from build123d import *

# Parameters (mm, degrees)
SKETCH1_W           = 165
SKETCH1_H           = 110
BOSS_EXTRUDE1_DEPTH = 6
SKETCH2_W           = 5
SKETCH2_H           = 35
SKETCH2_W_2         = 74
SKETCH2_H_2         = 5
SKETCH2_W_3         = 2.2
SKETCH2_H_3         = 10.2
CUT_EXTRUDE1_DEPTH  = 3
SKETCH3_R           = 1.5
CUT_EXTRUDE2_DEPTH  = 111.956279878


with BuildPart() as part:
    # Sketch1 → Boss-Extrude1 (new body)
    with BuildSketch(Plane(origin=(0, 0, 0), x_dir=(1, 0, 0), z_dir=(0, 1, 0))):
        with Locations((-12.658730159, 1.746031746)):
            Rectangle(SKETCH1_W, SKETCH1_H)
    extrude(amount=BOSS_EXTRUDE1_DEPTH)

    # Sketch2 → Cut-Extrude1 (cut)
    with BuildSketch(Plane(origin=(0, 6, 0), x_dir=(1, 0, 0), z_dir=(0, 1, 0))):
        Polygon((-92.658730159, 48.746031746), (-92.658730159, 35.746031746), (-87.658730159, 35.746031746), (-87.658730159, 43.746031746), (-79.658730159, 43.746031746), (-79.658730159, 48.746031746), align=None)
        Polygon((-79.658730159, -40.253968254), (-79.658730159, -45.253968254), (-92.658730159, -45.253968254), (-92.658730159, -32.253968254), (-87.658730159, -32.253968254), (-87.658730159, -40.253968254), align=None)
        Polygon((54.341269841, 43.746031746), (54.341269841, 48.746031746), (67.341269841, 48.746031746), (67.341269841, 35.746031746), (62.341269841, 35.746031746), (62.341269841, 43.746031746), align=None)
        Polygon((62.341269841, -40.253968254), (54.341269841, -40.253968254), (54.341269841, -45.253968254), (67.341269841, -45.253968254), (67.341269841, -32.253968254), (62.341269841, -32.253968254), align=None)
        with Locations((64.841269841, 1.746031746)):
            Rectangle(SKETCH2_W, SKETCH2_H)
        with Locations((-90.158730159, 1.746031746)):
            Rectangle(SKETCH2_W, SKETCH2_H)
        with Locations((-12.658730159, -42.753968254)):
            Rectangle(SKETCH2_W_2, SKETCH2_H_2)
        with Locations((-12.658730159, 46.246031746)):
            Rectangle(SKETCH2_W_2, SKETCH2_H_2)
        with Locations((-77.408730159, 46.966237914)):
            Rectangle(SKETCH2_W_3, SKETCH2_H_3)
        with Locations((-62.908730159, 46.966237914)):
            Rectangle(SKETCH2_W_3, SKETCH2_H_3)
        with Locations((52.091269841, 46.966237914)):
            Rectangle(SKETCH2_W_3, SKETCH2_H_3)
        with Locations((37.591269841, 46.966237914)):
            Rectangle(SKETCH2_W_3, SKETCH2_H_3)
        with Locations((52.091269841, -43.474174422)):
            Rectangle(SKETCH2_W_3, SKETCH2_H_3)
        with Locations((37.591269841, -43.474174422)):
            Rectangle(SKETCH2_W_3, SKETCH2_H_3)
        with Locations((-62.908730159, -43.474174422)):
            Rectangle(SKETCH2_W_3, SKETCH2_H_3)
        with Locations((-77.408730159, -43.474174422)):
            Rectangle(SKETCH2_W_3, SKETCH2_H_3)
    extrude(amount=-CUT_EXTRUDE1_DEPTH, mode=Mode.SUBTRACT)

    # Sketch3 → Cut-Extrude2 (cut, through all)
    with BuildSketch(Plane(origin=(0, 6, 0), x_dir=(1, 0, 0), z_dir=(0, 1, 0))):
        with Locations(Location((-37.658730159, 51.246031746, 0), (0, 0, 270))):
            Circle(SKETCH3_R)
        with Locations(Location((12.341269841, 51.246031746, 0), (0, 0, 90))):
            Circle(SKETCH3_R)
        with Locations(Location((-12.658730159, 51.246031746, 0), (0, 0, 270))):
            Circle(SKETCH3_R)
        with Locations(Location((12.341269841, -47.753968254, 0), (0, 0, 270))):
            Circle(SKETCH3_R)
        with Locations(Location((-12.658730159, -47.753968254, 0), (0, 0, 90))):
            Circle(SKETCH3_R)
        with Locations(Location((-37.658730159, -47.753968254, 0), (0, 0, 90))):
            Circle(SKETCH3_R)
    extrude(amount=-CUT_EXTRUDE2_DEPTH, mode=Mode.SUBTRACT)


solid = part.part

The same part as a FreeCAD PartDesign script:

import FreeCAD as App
import Part
import Sketcher

V = App.Vector
Q = App.Units.Quantity

doc = App.newDocument("Part")
params = doc.addObject("Spreadsheet::Sheet", "Params")
for row, (alias, value) in enumerate([
    ("sketch1_width", "165 mm"),
    ("sketch1_height", "110 mm"),
    ("pad1_length", "6 mm"),
    ("sketch2_width", "5 mm"),
    ("sketch2_width2", "8 mm"),
    ("sketch2_width3", "74 mm"),
    ("sketch2_height", "35 mm"),
    ("sketch2_width4", "2.2 mm"),
    ("pocket1_length", "3 mm"),
    ("sketch3_diameter", "3 mm"),
], start=1):
    params.set(f"A{row}", alias)
    params.set(f"B{row}", "=" + value)
    params.setAlias(f"B{row}", alias)

body = doc.addObject("PartDesign::Body", "Body")

sketch1 = body.newObject("Sketcher::SketchObject", "Sketch")
sketch1.AttachmentSupport = (doc.getObject("XZ_Plane"), [""])
sketch1.MapMode = "FlatFace"
sketch1.addGeometry([
    Part.LineSegment(V(-95, -57, 0), V(-95, 53, 0)),
    Part.LineSegment(V(-95, 53, 0), V(70, 53, 0)),
    Part.LineSegment(V(70, 53, 0), V(70, -57, 0)),
    Part.LineSegment(V(70, -57, 0), V(-95, -57, 0)),
], False)
sketch1.addConstraint([
    Sketcher.Constraint("Coincident", 0, 2, 1, 1),
    Sketcher.Constraint("Coincident", 1, 2, 2, 1),
    Sketcher.Constraint("Coincident", 2, 2, 3, 1),
    Sketcher.Constraint("Coincident", 3, 2, 0, 1),
    Sketcher.Constraint("Vertical", 0),
    Sketcher.Constraint("Horizontal", 1),
    Sketcher.Constraint("Vertical", 2),
    Sketcher.Constraint("Horizontal", 3),
    Sketcher.Constraint("DistanceX", 1, 1, 1, 2, Q("165 mm")),
    Sketcher.Constraint("DistanceY", 0, 1, 0, 2, Q("110 mm")),
    Sketcher.Constraint("DistanceX", 0, 2, -1, 1, Q("95.15873 mm")),
    Sketcher.Constraint("DistanceY", -1, 1, 0, 2, Q("53.253968 mm")),
])
sketch1.setExpression("Constraints[8]", "Params.sketch1_width")
sketch1.setExpression("Constraints[9]", "Params.sketch1_height")
pad1 = body.newObject("PartDesign::Pad", "Pad")
pad1.Profile = sketch1
pad1.setExpression("Length", "Params.pad1_length")
pad1.Reversed = True

sketch2 = body.newObject("Sketcher::SketchObject", "Sketch001")
sketch2.AttachmentSupport = (doc.getObject("XZ_Plane"), [""])
sketch2.MapMode = "FlatFace"
sketch2.AttachmentOffset = App.Placement(V(0, 0, -6), App.Rotation())
sketch2.addGeometry([
    Part.LineSegment(V(-92.7, -48.7, 0), V(-92.7, -35.7, 0)),
    Part.LineSegment(V(-92.7, -35.7, 0), V(-87.7, -35.7, 0)),
    Part.LineSegment(V(-87.7, -35.7, 0), V(-87.7, -43.7, 0)),
    Part.LineSegment(V(-87.7, -43.7, 0), V(-79.7, -43.7, 0)),
    Part.LineSegment(V(-79.7, -43.7, 0), V(-79.7, -48.7, 0)),
    Part.LineSegment(V(-79.7, -48.7, 0), V(-92.7, -48.7, 0)),
    Part.LineSegment(V(-79.7, 45.3, 0), V(-79.7, 40.3, 0)),
    Part.LineSegment(V(-79.7, 40.3, 0), V(-87.7, 40.3, 0)),
    Part.LineSegment(V(-87.7, 40.3, 0), V(-87.7, 32.3, 0)),
    Part.LineSegment(V(-87.7, 32.3, 0), V(-92.7, 32.3, 0)),
    Part.LineSegment(V(-92.7, 32.3, 0), V(-92.7, 45.3, 0)),
    Part.LineSegment(V(-92.7, 45.3, 0), V(-79.7, 45.3, 0)),
    Part.LineSegment(V(54.3, -48.7, 0), V(54.3, -43.7, 0)),
    Part.LineSegment(V(54.3, -43.7, 0), V(62.3, -43.7, 0)),
    Part.LineSegment(V(62.3, -43.7, 0), V(62.3, -35.7, 0)),
    Part.LineSegment(V(62.3, -35.7, 0), V(67.3, -35.7, 0)),
    Part.LineSegment(V(67.3, -35.7, 0), V(67.3, -48.7, 0)),
    Part.LineSegment(V(67.3, -48.7, 0), V(54.3, -48.7, 0)),
    Part.LineSegment(V(62.3, 40.3, 0), V(54.3, 40.3, 0)),
    Part.LineSegment(V(54.3, 40.3, 0), V(54.3, 45.3, 0)),
    Part.LineSegment(V(54.3, 45.3, 0), V(67.3, 45.3, 0)),
    Part.LineSegment(V(67.3, 45.3, 0), V(67.3, 32.3, 0)),
    Part.LineSegment(V(67.3, 32.3, 0), V(62.3, 32.3, 0)),
    Part.LineSegment(V(62.3, 32.3, 0), V(62.3, 40.3, 0)),
    Part.LineSegment(V(62.3, -19.2, 0), V(62.3, 15.8, 0)),
    Part.LineSegment(V(62.3, 15.8, 0), V(67.3, 15.8, 0)),
    Part.LineSegment(V(67.3, 15.8, 0), V(67.3, -19.2, 0)),
    Part.LineSegment(V(67.3, -19.2, 0), V(62.3, -19.2, 0)),
    Part.LineSegment(V(-92.7, -19.2, 0), V(-92.7, 15.8, 0)),
    Part.LineSegment(V(-92.7, 15.8, 0), V(-87.7, 15.8, 0)),
    Part.LineSegment(V(-87.7, 15.8, 0), V(-87.7, -19.2, 0)),
    Part.LineSegment(V(-87.7, -19.2, 0), V(-92.7, -19.2, 0)),
    Part.LineSegment(V(-49.7, 40.3, 0), V(-49.7, 45.3, 0)),
    Part.LineSegment(V(-49.7, 45.3, 0), V(24.3, 45.3, 0)),
    Part.LineSegment(V(24.3, 45.3, 0), V(24.3, 40.3, 0)),
    Part.LineSegment(V(24.3, 40.3, 0), V(-49.7, 40.3, 0)),
    Part.LineSegment(V(-49.7, -48.7, 0), V(-49.7, -43.7, 0)),
    Part.LineSegment(V(-49.7, -43.7, 0), V(24.3, -43.7, 0)),
    Part.LineSegment(V(24.3, -43.7, 0), V(24.3, -48.7, 0)),
    Part.LineSegment(V(24.3, -48.7, 0), V(-49.7, -48.7, 0)),
    Part.LineSegment(V(-78.5, -52.1, 0), V(-78.5, -41.9, 0)),
    Part.LineSegment(V(-78.5, -41.9, 0), V(-76.3, -41.9, 0)),
    Part.LineSegment(V(-76.3, -41.9, 0), V(-76.3, -52.1, 0)),
    Part.LineSegment(V(-76.3, -52.1, 0), V(-78.5, -52.1, 0)),
    Part.LineSegment(V(-64, -52.1, 0), V(-64, -41.9, 0)),
    Part.LineSegment(V(-64, -41.9, 0), V(-61.8, -41.9, 0)),
    Part.LineSegment(V(-61.8, -41.9, 0), V(-61.8, -52.1, 0)),
    Part.LineSegment(V(-61.8, -52.1, 0), V(-64, -52.1, 0)),
    Part.LineSegment(V(51, -52.1, 0), V(51, -41.9, 0)),
    Part.LineSegment(V(51, -41.9, 0), V(53.2, -41.9, 0)),
    Part.LineSegment(V(53.2, -41.9, 0), V(53.2, -52.1, 0)),
    Part.LineSegment(V(53.2, -52.1, 0), V(51, -52.1, 0)),
    Part.LineSegment(V(36.5, -52.1, 0), V(36.5, -41.9, 0)),
    Part.LineSegment(V(36.5, -41.9, 0), V(38.7, -41.9, 0)),
    Part.LineSegment(V(38.7, -41.9, 0), V(38.7, -52.1, 0)),
    Part.LineSegment(V(38.7, -52.1, 0), V(36.5, -52.1, 0)),
    Part.LineSegment(V(51, 38.4, 0), V(51, 48.6, 0)),
    Part.LineSegment(V(51, 48.6, 0), V(53.2, 48.6, 0)),
    Part.LineSegment(V(53.2, 48.6, 0), V(53.2, 38.4, 0)),
    Part.LineSegment(V(53.2, 38.4, 0), V(51, 38.4, 0)),
    Part.LineSegment(V(36.5, 38.4, 0), V(36.5, 48.6, 0)),
    Part.LineSegment(V(36.5, 48.6, 0), V(38.7, 48.6, 0)),
    Part.LineSegment(V(38.7, 48.6, 0), V(38.7, 38.4, 0)),
    Part.LineSegment(V(38.7, 38.4, 0), V(36.5, 38.4, 0)),
    Part.LineSegment(V(-64, 38.4, 0), V(-64, 48.6, 0)),
    Part.LineSegment(V(-64, 48.6, 0), V(-61.8, 48.6, 0)),
    Part.LineSegment(V(-61.8, 48.6, 0), V(-61.8, 38.4, 0)),
    Part.LineSegment(V(-61.8, 38.4, 0), V(-64, 38.4, 0)),
    Part.LineSegment(V(-78.5, 38.4, 0), V(-78.5, 48.6, 0)),
    Part.LineSegment(V(-78.5, 48.6, 0), V(-76.3, 48.6, 0)),
    Part.LineSegment(V(-76.3, 48.6, 0), V(-76.3, 38.4, 0)),
    Part.LineSegment(V(-76.3, 38.4, 0), V(-78.5, 38.4, 0)),
], False)
sketch2.addConstraint([
    Sketcher.Constraint("Coincident", 0, 2, 1, 1),
    Sketcher.Constraint("Coincident", 1, 2, 2, 1),
    Sketcher.Constraint("Coincident", 2, 2, 3, 1),
    Sketcher.Constraint("Coincident", 3, 2, 4, 1),
    Sketcher.Constraint("Coincident", 4, 2, 5, 1),
    Sketcher.Constraint("Coincident", 5, 2, 0, 1),
    Sketcher.Constraint("Coincident", 6, 2, 7, 1),
    Sketcher.Constraint("Coincident", 7, 2, 8, 1),
    Sketcher.Constraint("Coincident", 8, 2, 9, 1),
    Sketcher.Constraint("Coincident", 9, 2, 10, 1),
    Sketcher.Constraint("Coincident", 10, 2, 11, 1),
    Sketcher.Constraint("Coincident", 11, 2, 6, 1),
    Sketcher.Constraint("Coincident", 12, 2, 13, 1),
    Sketcher.Constraint("Coincident", 13, 2, 14, 1),
    Sketcher.Constraint("Coincident", 14, 2, 15, 1),
    Sketcher.Constraint("Coincident", 15, 2, 16, 1),
    Sketcher.Constraint("Coincident", 16, 2, 17, 1),
    Sketcher.Constraint("Coincident", 17, 2, 12, 1),
    Sketcher.Constraint("Coincident", 18, 2, 19, 1),
    Sketcher.Constraint("Coincident", 19, 2, 20, 1),
    Sketcher.Constraint("Coincident", 20, 2, 21, 1),
    Sketcher.Constraint("Coincident", 21, 2, 22, 1),
    Sketcher.Constraint("Coincident", 22, 2, 23, 1),
    Sketcher.Constraint("Coincident", 23, 2, 18, 1),
    Sketcher.Constraint("Coincident", 24, 2, 25, 1),
    Sketcher.Constraint("Coincident", 25, 2, 26, 1),
    Sketcher.Constraint("Coincident", 26, 2, 27, 1),
    Sketcher.Constraint("Coincident", 27, 2, 24, 1),
    Sketcher.Constraint("Coincident", 28, 2, 29, 1),
    Sketcher.Constraint("Coincident", 29, 2, 30, 1),
    Sketcher.Constraint("Coincident", 30, 2, 31, 1),
    Sketcher.Constraint("Coincident", 31, 2, 28, 1),
    Sketcher.Constraint("Coincident", 32, 2, 33, 1),
    Sketcher.Constraint("Coincident", 33, 2, 34, 1),
    Sketcher.Constraint("Coincident", 34, 2, 35, 1),
    Sketcher.Constraint("Coincident", 35, 2, 32, 1),
    Sketcher.Constraint("Coincident", 36, 2, 37, 1),
    Sketcher.Constraint("Coincident", 37, 2, 38, 1),
    Sketcher.Constraint("Coincident", 38, 2, 39, 1),
    Sketcher.Constraint("Coincident", 39, 2, 36, 1),
    Sketcher.Constraint("Coincident", 40, 2, 41, 1),
    Sketcher.Constraint("Coincident", 41, 2, 42, 1),
    Sketcher.Constraint("Coincident", 42, 2, 43, 1),
    Sketcher.Constraint("Coincident", 43, 2, 40, 1),
    Sketcher.Constraint("Coincident", 44, 2, 45, 1),
    Sketcher.Constraint("Coincident", 45, 2, 46, 1),
    Sketcher.Constraint("Coincident", 46, 2, 47, 1),
    Sketcher.Constraint("Coincident", 47, 2, 44, 1),
    Sketcher.Constraint("Coincident", 48, 2, 49, 1),
    Sketcher.Constraint("Coincident", 49, 2, 50, 1),
    Sketcher.Constraint("Coincident", 50, 2, 51, 1),
    Sketcher.Constraint("Coincident", 51, 2, 48, 1),
    Sketcher.Constraint("Coincident", 52, 2, 53, 1),
    Sketcher.Constraint("Coincident", 53, 2, 54, 1),
    Sketcher.Constraint("Coincident", 54, 2, 55, 1),
    Sketcher.Constraint("Coincident", 55, 2, 52, 1),
    Sketcher.Constraint("Coincident", 56, 2, 57, 1),
    Sketcher.Constraint("Coincident", 57, 2, 58, 1),
    Sketcher.Constraint("Coincident", 58, 2, 59, 1),
    Sketcher.Constraint("Coincident", 59, 2, 56, 1),
    Sketcher.Constraint("Coincident", 60, 2, 61, 1),
    Sketcher.Constraint("Coincident", 61, 2, 62, 1),
    Sketcher.Constraint("Coincident", 62, 2, 63, 1),
    Sketcher.Constraint("Coincident", 63, 2, 60, 1),
    Sketcher.Constraint("Coincident", 64, 2, 65, 1),
    Sketcher.Constraint("Coincident", 65, 2, 66, 1),
    Sketcher.Constraint("Coincident", 66, 2, 67, 1),
    Sketcher.Constraint("Coincident", 67, 2, 64, 1),
    Sketcher.Constraint("Coincident", 68, 2, 69, 1),
    Sketcher.Constraint("Coincident", 69, 2, 70, 1),
    Sketcher.Constraint("Coincident", 70, 2, 71, 1),
    Sketcher.Constraint("Coincident", 71, 2, 68, 1),
    Sketcher.Constraint("Vertical", 0),
    Sketcher.Constraint("Horizontal", 1),
    Sketcher.Constraint("Vertical", 2),
    Sketcher.Constraint("Horizontal", 3),
    Sketcher.Constraint("Vertical", 4),
    Sketcher.Constraint("Horizontal", 5),
    Sketcher.Constraint("Vertical", 6),
    Sketcher.Constraint("Horizontal", 7),
    Sketcher.Constraint("Vertical", 8),
    Sketcher.Constraint("Horizontal", 9),
    Sketcher.Constraint("Vertical", 10),
    Sketcher.Constraint("Horizontal", 11),
    Sketcher.Constraint("Vertical", 12),
    Sketcher.Constraint("Horizontal", 13),
    Sketcher.Constraint("Vertical", 14),
    Sketcher.Constraint("Horizontal", 15),
    Sketcher.Constraint("Vertical", 16),
    Sketcher.Constraint("Horizontal", 17),
    Sketcher.Constraint("Horizontal", 18),
    Sketcher.Constraint("Vertical", 19),
    Sketcher.Constraint("Horizontal", 20),
    Sketcher.Constraint("Vertical", 21),
    Sketcher.Constraint("Horizontal", 22),
    Sketcher.Constraint("Vertical", 23),
    Sketcher.Constraint("Vertical", 24),
    Sketcher.Constraint("Horizontal", 25),
    Sketcher.Constraint("Vertical", 26),
    Sketcher.Constraint("Horizontal", 27),
    Sketcher.Constraint("Vertical", 28),
    Sketcher.Constraint("Horizontal", 29),
    Sketcher.Constraint("Vertical", 30),
    Sketcher.Constraint("Horizontal", 31),
    Sketcher.Constraint("Vertical", 32),
    Sketcher.Constraint("Horizontal", 33),
    Sketcher.Constraint("Vertical", 34),
    Sketcher.Constraint("Horizontal", 35),
    Sketcher.Constraint("Vertical", 36),
    Sketcher.Constraint("Horizontal", 37),
    Sketcher.Constraint("Vertical", 38),
    Sketcher.Constraint("Horizontal", 39),
    Sketcher.Constraint("Vertical", 40),
    Sketcher.Constraint("Horizontal", 41),
    Sketcher.Constraint("Vertical", 42),
    Sketcher.Constraint("Horizontal", 43),
    Sketcher.Constraint("Vertical", 44),
    Sketcher.Constraint("Horizontal", 45),
    Sketcher.Constraint("Vertical", 46),
    Sketcher.Constraint("Horizontal", 47),
    Sketcher.Constraint("Vertical", 48),
    Sketcher.Constraint("Horizontal", 49),
    Sketcher.Constraint("Vertical", 50),
    Sketcher.Constraint("Horizontal", 51),
    Sketcher.Constraint("Vertical", 52),
    Sketcher.Constraint("Horizontal", 53),
    Sketcher.Constraint("Vertical", 54),
    Sketcher.Constraint("Horizontal", 55),
    Sketcher.Constraint("Vertical", 56),
    Sketcher.Constraint("Horizontal", 57),
    Sketcher.Constraint("Vertical", 58),
    Sketcher.Constraint("Horizontal", 59),
    Sketcher.Constraint("Vertical", 60),
    Sketcher.Constraint("Horizontal", 61),
    Sketcher.Constraint("Vertical", 62),
    Sketcher.Constraint("Horizontal", 63),
    Sketcher.Constraint("Vertical", 64),
    Sketcher.Constraint("Horizontal", 65),
    Sketcher.Constraint("Vertical", 66),
    Sketcher.Constraint("Horizontal", 67),
    Sketcher.Constraint("Vertical", 68),
    Sketcher.Constraint("Horizontal", 69),
    Sketcher.Constraint("Vertical", 70),
    Sketcher.Constraint("Horizontal", 71),
    Sketcher.Constraint("Horizontal", 3, 2, 12, 2),
    Sketcher.Constraint("Horizontal", 1, 2, 14, 2),
    Sketcher.Constraint("Horizontal", 5, 2, 16, 2),
    Sketcher.Constraint("Horizontal", 7, 2, 18, 2),
    Sketcher.Constraint("Horizontal", 11, 2, 19, 2),
    Sketcher.Constraint("Horizontal", 9, 2, 21, 2),
    Sketcher.Constraint("Horizontal", 25, 2, 28, 2),
    Sketcher.Constraint("Horizontal", 27, 2, 30, 2),
    Sketcher.Constraint("Horizontal", 20, 2, 32, 2),
    Sketcher.Constraint("Horizontal", 23, 2, 34, 2),
    Sketcher.Constraint("Horizontal", 13, 2, 36, 2),
    Sketcher.Constraint("Horizontal", 17, 2, 38, 2),
    Sketcher.Constraint("Horizontal", 41, 2, 44, 2),
    Sketcher.Constraint("Horizontal", 43, 2, 46, 2),
    Sketcher.Constraint("Horizontal", 45, 2, 48, 2),
    Sketcher.Constraint("Horizontal", 47, 2, 50, 2),
    Sketcher.Constraint("Horizontal", 49, 2, 52, 2),
    Sketcher.Constraint("Horizontal", 51, 2, 54, 2),
    Sketcher.Constraint("Horizontal", 57, 2, 60, 2),
    Sketcher.Constraint("Horizontal", 59, 2, 62, 2),
    Sketcher.Constraint("Horizontal", 61, 2, 64, 2),
    Sketcher.Constraint("Horizontal", 63, 2, 66, 2),
    Sketcher.Constraint("Horizontal", 65, 2, 68, 2),
    Sketcher.Constraint("Horizontal", 67, 2, 70, 2),
    Sketcher.Constraint("Vertical", 4, 2, 6, 2),
    Sketcher.Constraint("Vertical", 2, 2, 7, 2),
    Sketcher.Constraint("Vertical", 5, 2, 9, 2),
    Sketcher.Constraint("Vertical", 17, 2, 18, 2),
    Sketcher.Constraint("Vertical", 16, 2, 20, 2),
    Sketcher.Constraint("Vertical", 14, 2, 22, 2),
    Sketcher.Constraint("Vertical", 23, 2, 24, 2),
    Sketcher.Constraint("Vertical", 21, 2, 25, 2),
    Sketcher.Constraint("Vertical", 10, 2, 28, 2),
    Sketcher.Constraint("Vertical", 8, 2, 29, 2),
    Sketcher.Constraint("Vertical", 35, 2, 36, 2),
    Sketcher.Constraint("Vertical", 34, 2, 37, 2),
    Sketcher.Constraint("Vertical", 51, 2, 56, 2),
    Sketcher.Constraint("Vertical", 50, 2, 57, 2),
    Sketcher.Constraint("Vertical", 55, 2, 60, 2),
    Sketcher.Constraint("Vertical", 54, 2, 61, 2),
    Sketcher.Constraint("Vertical", 47, 2, 64, 2),
    Sketcher.Constraint("Vertical", 46, 2, 65, 2),
    Sketcher.Constraint("Vertical", 43, 2, 68, 2),
    Sketcher.Constraint("Vertical", 42, 2, 69, 2),
    Sketcher.Constraint("Equal", 7, 13),
    Sketcher.Constraint("Equal", 9, 15),
    Sketcher.Constraint("Equal", 43, 45),
    Sketcher.Constraint("Equal", 47, 49),
    Sketcher.Constraint("Equal", 51, 53),
    Sketcher.Constraint("Equal", 20, 0),
    Sketcher.Constraint("Equal", 18, 2),
    Sketcher.Constraint("Equal", 4, 6),
    Sketcher.Constraint("Equal", 2, 8),
    Sketcher.Constraint("Equal", 54, 56),
    Sketcher.Constraint("DistanceX", 1, 1, 1, 2, Q("5 mm")),
    Sketcher.Constraint("DistanceX", 3, 1, 3, 2, Q("8 mm")),
    Sketcher.Constraint("DistanceX", 33, 1, 33, 2, Q("74 mm")),
    Sketcher.Constraint("DistanceY", 24, 1, 24, 2, Q("35 mm")),
    Sketcher.Constraint("DistanceX", 41, 1, 41, 2, Q("2.2 mm")),
    Sketcher.Constraint("DistanceY", 40, 1, 40, 2, Q("10.2 mm")),
    Sketcher.Constraint("DistanceX", 0, 2, -1, 1, Q("92.65873 mm")),
    Sketcher.Constraint("DistanceY", 0, 2, -1, 1, Q("35.746032 mm")),
    Sketcher.Constraint("DistanceY", -1, 1, 6, 2, Q("40.253968 mm")),
    Sketcher.Constraint("DistanceX", -1, 1, 12, 2, Q("54.34127 mm")),
    Sketcher.Constraint("DistanceY", -1, 1, 24, 2, Q("15.753968 mm")),
    Sketcher.Constraint("DistanceX", 32, 2, -1, 1, Q("49.65873 mm")),
    Sketcher.Constraint("DistanceX", 40, 2, -1, 1, Q("78.50873 mm")),
    Sketcher.Constraint("DistanceX", 44, 2, -1, 1, Q("64.00873 mm")),
    Sketcher.Constraint("DistanceX", -1, 1, 48, 2, Q("50.99127 mm")),
    Sketcher.Constraint("DistanceX", -1, 1, 52, 2, Q("36.49127 mm")),
    Sketcher.Constraint("DistanceY", 40, 2, -1, 1, Q("41.866238 mm")),
    Sketcher.Constraint("DistanceY", -1, 1, 56, 2, Q("48.574174 mm")),
])
sketch2.setExpression("Constraints[198]", "Params.sketch2_width")
sketch2.setExpression("Constraints[199]", "Params.sketch2_width2")
sketch2.setExpression("Constraints[200]", "Params.sketch2_width3")
sketch2.setExpression("Constraints[201]", "Params.sketch2_height")
sketch2.setExpression("Constraints[202]", "Params.sketch2_width4")
pocket1 = body.newObject("PartDesign::Pocket", "Pocket")
pocket1.Profile = sketch2
pocket1.setExpression("Length", "Params.pocket1_length")
pocket1.Reversed = True

sketch3 = body.newObject("Sketcher::SketchObject", "Sketch002")
sketch3.AttachmentSupport = (doc.getObject("XZ_Plane"), [""])
sketch3.MapMode = "FlatFace"
sketch3.AttachmentOffset = App.Placement(V(0, 0, -6), App.Rotation())
sketch3.addGeometry([
    Part.Circle(V(-37.7, -51.2, 0), V(0, 0, 1), 1.5),
    Part.Circle(V(12.3, -51.2, 0), V(0, 0, 1), 1.5),
    Part.Circle(V(-12.7, -51.2, 0), V(0, 0, 1), 1.5),
    Part.Circle(V(12.3, 47.8, 0), V(0, 0, 1), 1.5),
    Part.Circle(V(-12.7, 47.8, 0), V(0, 0, 1), 1.5),
    Part.Circle(V(-37.7, 47.8, 0), V(0, 0, 1), 1.5),
], False)
sketch3.addConstraint([
    Sketcher.Constraint("Equal", 0, 1),
    Sketcher.Constraint("Equal", 1, 2),
    Sketcher.Constraint("Equal", 2, 3),
    Sketcher.Constraint("Equal", 3, 4),
    Sketcher.Constraint("Equal", 4, 5),
    Sketcher.Constraint("Horizontal", 0, 3, 1, 3),
    Sketcher.Constraint("Horizontal", 1, 3, 2, 3),
    Sketcher.Constraint("Horizontal", 3, 3, 4, 3),
    Sketcher.Constraint("Horizontal", 4, 3, 5, 3),
    Sketcher.Constraint("Vertical", 1, 3, 3, 3),
    Sketcher.Constraint("Vertical", 2, 3, 4, 3),
    Sketcher.Constraint("Vertical", 0, 3, 5, 3),
    Sketcher.Constraint("Diameter", 0, Q("3 mm")),
    Sketcher.Constraint("DistanceX", 0, 3, 1, 3, Q("50 mm")),
    Sketcher.Constraint("DistanceX", 0, 3, 2, 3, Q("25 mm")),
    Sketcher.Constraint("DistanceY", 1, 3, 3, 3, Q("99 mm")),
    Sketcher.Constraint("DistanceX", 0, 3, -1, 1, Q("37.65873 mm")),
    Sketcher.Constraint("DistanceY", 0, 3, -1, 1, Q("51.246032 mm")),
])
sketch3.setExpression("Constraints[12]", "Params.sketch3_diameter")
pocket2 = body.newObject("PartDesign::Pocket", "Pocket001")
pocket2.Profile = sketch3
pocket2.Type = "ThroughAll"
pocket2.Reversed = True

doc.recompute()
